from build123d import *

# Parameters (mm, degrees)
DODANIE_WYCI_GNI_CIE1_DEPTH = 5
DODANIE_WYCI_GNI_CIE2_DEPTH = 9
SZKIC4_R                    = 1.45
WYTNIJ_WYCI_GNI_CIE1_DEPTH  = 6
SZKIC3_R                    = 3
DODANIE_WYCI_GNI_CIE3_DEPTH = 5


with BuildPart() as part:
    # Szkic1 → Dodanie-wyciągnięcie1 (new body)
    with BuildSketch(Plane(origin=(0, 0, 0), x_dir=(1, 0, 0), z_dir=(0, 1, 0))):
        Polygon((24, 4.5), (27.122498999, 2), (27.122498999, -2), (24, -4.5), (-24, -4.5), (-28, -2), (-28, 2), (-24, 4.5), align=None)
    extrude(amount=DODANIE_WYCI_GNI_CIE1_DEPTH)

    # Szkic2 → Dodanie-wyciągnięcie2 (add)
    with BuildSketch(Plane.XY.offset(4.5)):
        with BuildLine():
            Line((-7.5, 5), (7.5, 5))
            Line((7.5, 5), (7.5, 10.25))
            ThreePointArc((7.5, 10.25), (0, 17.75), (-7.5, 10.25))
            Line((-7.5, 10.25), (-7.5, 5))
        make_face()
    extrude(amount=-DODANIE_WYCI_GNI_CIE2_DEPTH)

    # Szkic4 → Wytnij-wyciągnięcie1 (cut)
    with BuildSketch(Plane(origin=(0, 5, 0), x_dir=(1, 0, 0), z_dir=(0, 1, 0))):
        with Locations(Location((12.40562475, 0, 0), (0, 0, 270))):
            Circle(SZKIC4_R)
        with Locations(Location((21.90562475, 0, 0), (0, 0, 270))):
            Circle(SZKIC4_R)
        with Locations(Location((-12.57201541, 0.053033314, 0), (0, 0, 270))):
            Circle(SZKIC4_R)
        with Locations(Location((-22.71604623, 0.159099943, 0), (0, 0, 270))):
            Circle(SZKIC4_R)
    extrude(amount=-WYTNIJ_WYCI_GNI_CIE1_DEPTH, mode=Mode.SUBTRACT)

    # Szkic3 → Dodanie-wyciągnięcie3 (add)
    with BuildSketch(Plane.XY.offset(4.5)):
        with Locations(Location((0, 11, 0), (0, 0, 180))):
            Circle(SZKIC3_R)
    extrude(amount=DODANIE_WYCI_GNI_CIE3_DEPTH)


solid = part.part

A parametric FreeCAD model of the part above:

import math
import FreeCAD as App
import Part
import Sketcher

V = App.Vector

doc = App.newDocument("Part")
params = doc.addObject("Spreadsheet::Sheet", "Params")
for row, (alias, value) in enumerate([
    ("sketch1_width", "48 mm"),
    ("sketch1_height", "4 mm"),
    ("sketch1_length", "4 mm"),
    ("pad1_length", "5 mm"),
    ("sketch2_radius", "7.5 mm"),
    ("sketch2_height", "5.25 mm"),
    ("pad2_length", "9 mm"),
    ("sketch3_diameter", "2.9 mm"),
    ("pocket1_length", "6 mm"),
    ("sketch4_diameter", "6 mm"),
    ("pad3_length", "5 mm"),
], start=1):
    params.set(f"A{row}", alias)
    params.set(f"B{row}", "=" + value)
    params.setAlias(f"B{row}", alias)

body = doc.addObject("PartDesign::Body", "Body")

# Sketch on XZ plane
sketch1 = doc.addObject("Sketcher::SketchObject", "Sketch")
body.addObject(sketch1)
sketch1.AttachmentSupport = (doc.XZ_Plane, [""])
sketch1.MapMode = "FlatFace"
sketch1.addGeometry([
    Part.LineSegment(V(27.1, -2, 0), V(24, -4.5, 0)),  # 0
    Part.LineSegment(V(24, -4.5, 0), V(-24, -4.5, 0)),  # 1
    Part.LineSegment(V(-24, -4.5, 0), V(-28, -2, 0)),  # 2
    Part.LineSegment(V(-28, -2, 0), V(-28, 2, 0)),  # 3
    Part.LineSegment(V(-28, 2, 0), V(-24, 4.5, 0)),  # 4
    Part.LineSegment(V(-24, 4.5, 0), V(24, 4.5, 0)),  # 5
    Part.LineSegment(V(24, 4.5, 0), V(27.1, 2, 0)),  # 6
    Part.LineSegment(V(27.1, 2, 0), V(27.1, -2, 0)),  # 7
], False)
sketch1.addConstraint([
    Sketcher.Constraint("Coincident", 0, 2, 1, 1),
    Sketcher.Constraint("Coincident", 1, 2, 2, 1),
    Sketcher.Constraint("Coincident", 2, 2, 3, 1),
    Sketcher.Constraint("Coincident", 3, 2, 4, 1),
    Sketcher.Constraint("Coincident", 4, 2, 5, 1),
    Sketcher.Constraint("Coincident", 5, 2, 6, 1),
    Sketcher.Constraint("Coincident", 6, 2, 7, 1),
    Sketcher.Constraint("Coincident", 7, 2, 0, 1),
    Sketcher.Constraint("Horizontal", 1),
    Sketcher.Constraint("Vertical", 3),
    Sketcher.Constraint("Horizontal", 5),
    Sketcher.Constraint("Vertical", 7),
    Sketcher.Constraint("Symmetric", 0, 2, 4, 2, -1, 1),
    Sketcher.Constraint("Horizontal", 3, 2, 6, 2),
    Sketcher.Constraint("Horizontal", 2, 2, 7, 2),
    Sketcher.Constraint("Vertical", 1, 2, 4, 2),
    Sketcher.Constraint("Vertical", 0, 2, 5, 2),
    Sketcher.Constraint("Equal", 2, 4),
    Sketcher.Constraint("DistanceX", 1, 2, 1, 1, 48.0),
    Sketcher.Constraint("DistanceY", 3, 1, 3, 2, 4.0),
    Sketcher.Constraint("Distance", 0, 4.0),
    Sketcher.Constraint("DistanceX", 2, 2, -1, 1, 28.0),
    Sketcher.Constraint("DistanceY", 1, 2, 4, 2, 9.0),
])
sketch1.setExpression("Constraints[18]", "Params.sketch1_width")
sketch1.setExpression("Constraints[19]", "Params.sketch1_height")
sketch1.setExpression("Constraints[20]", "Params.sketch1_length")
pad1 = doc.addObject("PartDesign::Pad", "Pad")
body.addObject(pad1)
pad1.Profile = sketch1
pad1.setExpression("Length", "Params.pad1_length")
pad1.Reversed = True

# Sketch on XY plane
sketch2 = doc.addObject("Sketcher::SketchObject", "Sketch001")
body.addObject(sketch2)
sketch2.AttachmentSupport = (doc.XY_Plane, [""])
sketch2.MapMode = "FlatFace"
sketch2.AttachmentOffset = App.Placement(V(0, 0, 4.5), App.Rotation())
sketch2.addGeometry([
    Part.LineSegment(V(-8, 5, 0), V(8, 5, 0)),
    Part.LineSegment(V(8, 5, 0), V(8, 10, 0)),
    Part.ArcOfCircle(Part.Circle(V(0, 10, 0), V(0, 0, 1), 8), math.radians(0), math.radians(180)),
    Part.LineSegment(V(-8, 10, 0), V(-8, 5, 0)),
], False)
sketch2.addConstraint([
    Sketcher.Constraint("Coincident", 0, 2, 1, 1),
    Sketcher.Constraint("Tangent", 1, 2, 2, 1),
    Sketcher.Constraint("Tangent", 2, 2, 3, 1),
    Sketcher.Constraint("Coincident", 3, 2, 0, 1),
    Sketcher.Constraint("Horizontal", 0),
    Sketcher.Constraint("Vertical", 1),
    Sketcher.Constraint("Vertical", 3),
    Sketcher.Constraint("PointOnObject", 2, 3, -2),
    Sketcher.Constraint("Radius", 2, 7.5),
    Sketcher.Constraint("DistanceY", -1, 1, 0, 2, 5.0),
    Sketcher.Constraint("DistanceY", 1, 1, 1, 2, 5.25),
])
sketch2.setExpression("Constraints[8]", "Params.sketch2_radius")
sketch2.setExpression("Constraints[10]", "Params.sketch2_height")
pad2 = doc.addObject("PartDesign::Pad", "Pad001")
body.addObject(pad2)
pad2.Profile = sketch2
pad2.setExpression("Length", "Params.pad2_length")
pad2.Reversed = True

# Sketch on XZ plane
sketch3 = doc.addObject("Sketcher::SketchObject", "Sketch002")
body.addObject(sketch3)
sketch3.AttachmentSupport = (doc.XZ_Plane, [""])
sketch3.MapMode = "FlatFace"
sketch3.AttachmentOffset = App.Placement(V(0, 0, -5), App.Rotation())
sketch3.addGeometry([
    Part.Circle(V(12.4, 0, 0), V(0, 0, 1), 1.4),
    Part.Circle(V(21.9, 0, 0), V(0, 0, 1), 1.4),
    Part.Circle(V(-12.6, -0.1, 0), V(0, 0, 1), 1.4),
    Part.Circle(V(-22.7, -0.2, 0), V(0, 0, 1), 1.4),
], False)
sketch3.addConstraint([
    Sketcher.Constraint("Equal", 0, 1),
    Sketcher.Constraint("Equal", 1, 2),
    Sketcher.Constraint("Equal", 2, 3),
    Sketcher.Constraint("PointOnObject", 0, 3, -1),
    Sketcher.Constraint("PointOnObject", 1, 3, -1),
    Sketcher.Constraint("Diameter", 0, 2.9),
    Sketcher.Constraint("DistanceX", 0, 3, 1, 3, 9.5),
    Sketcher.Constraint("DistanceY", 3, 3, -1, 1, 0.1591),
    Sketcher.Constraint("DistanceX", 2, 3, 0, 3, 24.97764),
    Sketcher.Constraint("DistanceX", 3, 3, 2, 3, 10.144031),
    Sketcher.Constraint("DistanceX", -1, 1, 0, 3, 12.405625),
    Sketcher.Constraint("DistanceY", 2, 3, -1, 1, 0.053033),
])
sketch3.setExpression("Constraints[5]", "Params.sketch3_diameter")
pocket1 = doc.addObject("PartDesign::Pocket", "Pocket")
body.addObject(pocket1)
pocket1.Profile = sketch3
pocket1.setExpression("Length", "Params.pocket1_length")
pocket1.Reversed = True

# Sketch on XY plane
sketch4 = doc.addObject("Sketcher::SketchObject", "Sketch003")
body.addObject(sketch4)
sketch4.AttachmentSupport = (doc.XY_Plane, [""])
sketch4.MapMode = "FlatFace"
sketch4.AttachmentOffset = App.Placement(V(0, 0, 4.5), App.Rotation())
sketch4.addGeometry(Part.Circle(V(0, 11, 0), V(0, 0, 1), 3), False)
sketch4.addConstraint([
    Sketcher.Constraint("PointOnObject", 0, 3, -2),
    Sketcher.Constraint("Diameter", 0, 6.0),
    Sketcher.Constraint("DistanceY", -1, 1, 0, 3, 11.0),
])
sketch4.setExpression("Constraints[1]", "Params.sketch4_diameter")
pad3 = doc.addObject("PartDesign::Pad", "Pad002")
body.addObject(pad3)
pad3.Profile = sketch4
pad3.setExpression("Length", "Params.pad3_length")

doc.recompute()
